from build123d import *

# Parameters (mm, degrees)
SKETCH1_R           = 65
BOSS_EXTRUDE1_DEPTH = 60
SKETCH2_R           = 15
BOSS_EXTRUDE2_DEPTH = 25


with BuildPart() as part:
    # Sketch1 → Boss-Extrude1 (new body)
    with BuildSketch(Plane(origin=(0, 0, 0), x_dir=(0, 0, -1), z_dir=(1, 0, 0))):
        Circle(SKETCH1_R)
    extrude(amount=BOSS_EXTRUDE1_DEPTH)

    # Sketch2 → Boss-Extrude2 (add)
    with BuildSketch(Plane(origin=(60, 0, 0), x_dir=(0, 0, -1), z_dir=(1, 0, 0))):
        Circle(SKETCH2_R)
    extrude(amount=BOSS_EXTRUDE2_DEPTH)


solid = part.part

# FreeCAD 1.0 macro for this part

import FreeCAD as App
import Part
import Sketcher

V = App.Vector

doc = App.newDocument("Part")
body = doc.addObject("PartDesign::Body", "Body")

sketch1 = body.newObject("Sketcher::SketchObject", "Sketch")
sketch1.AttachmentSupport = (doc.getObject("YZ_Plane"), [""])
sketch1.MapMode = "FlatFace"
sketch1.addGeometry(Part.Circle(V(0, 0, 0), V(0, 0, 1), 65), False)
sketch1.addConstraint([
    Sketcher.Constraint("Coincident", 0, 3, -1, 1),
    Sketcher.Constraint("Diameter", 0, 130.0),
])
pad1 = body.newObject("PartDesign::Pad", "Pad")
pad1.Profile = sketch1
pad1.Length = 60

sketch2 = body.newObject("Sketcher::SketchObject", "Sketch001")
sketch2.AttachmentSupport = (doc.getObject("YZ_Plane"), [""])
sketch2.MapMode = "FlatFace"
sketch2.AttachmentOffset = App.Placement(V(0, 0, 60), App.Rotation())
sketch2.addGeometry(Part.Circle(V(0, 0, 0), V(0, 0, 1), 15), False)
sketch2.addConstraint([
    Sketcher.Constraint("Coincident", 0, 3, -1, 1),
    Sketcher.Constraint("Diameter", 0, 30.0),
])
pad2 = body.newObject("PartDesign::Pad", "Pad001")
pad2.Profile = sketch2
pad2.Length = 25

doc.recompute()
